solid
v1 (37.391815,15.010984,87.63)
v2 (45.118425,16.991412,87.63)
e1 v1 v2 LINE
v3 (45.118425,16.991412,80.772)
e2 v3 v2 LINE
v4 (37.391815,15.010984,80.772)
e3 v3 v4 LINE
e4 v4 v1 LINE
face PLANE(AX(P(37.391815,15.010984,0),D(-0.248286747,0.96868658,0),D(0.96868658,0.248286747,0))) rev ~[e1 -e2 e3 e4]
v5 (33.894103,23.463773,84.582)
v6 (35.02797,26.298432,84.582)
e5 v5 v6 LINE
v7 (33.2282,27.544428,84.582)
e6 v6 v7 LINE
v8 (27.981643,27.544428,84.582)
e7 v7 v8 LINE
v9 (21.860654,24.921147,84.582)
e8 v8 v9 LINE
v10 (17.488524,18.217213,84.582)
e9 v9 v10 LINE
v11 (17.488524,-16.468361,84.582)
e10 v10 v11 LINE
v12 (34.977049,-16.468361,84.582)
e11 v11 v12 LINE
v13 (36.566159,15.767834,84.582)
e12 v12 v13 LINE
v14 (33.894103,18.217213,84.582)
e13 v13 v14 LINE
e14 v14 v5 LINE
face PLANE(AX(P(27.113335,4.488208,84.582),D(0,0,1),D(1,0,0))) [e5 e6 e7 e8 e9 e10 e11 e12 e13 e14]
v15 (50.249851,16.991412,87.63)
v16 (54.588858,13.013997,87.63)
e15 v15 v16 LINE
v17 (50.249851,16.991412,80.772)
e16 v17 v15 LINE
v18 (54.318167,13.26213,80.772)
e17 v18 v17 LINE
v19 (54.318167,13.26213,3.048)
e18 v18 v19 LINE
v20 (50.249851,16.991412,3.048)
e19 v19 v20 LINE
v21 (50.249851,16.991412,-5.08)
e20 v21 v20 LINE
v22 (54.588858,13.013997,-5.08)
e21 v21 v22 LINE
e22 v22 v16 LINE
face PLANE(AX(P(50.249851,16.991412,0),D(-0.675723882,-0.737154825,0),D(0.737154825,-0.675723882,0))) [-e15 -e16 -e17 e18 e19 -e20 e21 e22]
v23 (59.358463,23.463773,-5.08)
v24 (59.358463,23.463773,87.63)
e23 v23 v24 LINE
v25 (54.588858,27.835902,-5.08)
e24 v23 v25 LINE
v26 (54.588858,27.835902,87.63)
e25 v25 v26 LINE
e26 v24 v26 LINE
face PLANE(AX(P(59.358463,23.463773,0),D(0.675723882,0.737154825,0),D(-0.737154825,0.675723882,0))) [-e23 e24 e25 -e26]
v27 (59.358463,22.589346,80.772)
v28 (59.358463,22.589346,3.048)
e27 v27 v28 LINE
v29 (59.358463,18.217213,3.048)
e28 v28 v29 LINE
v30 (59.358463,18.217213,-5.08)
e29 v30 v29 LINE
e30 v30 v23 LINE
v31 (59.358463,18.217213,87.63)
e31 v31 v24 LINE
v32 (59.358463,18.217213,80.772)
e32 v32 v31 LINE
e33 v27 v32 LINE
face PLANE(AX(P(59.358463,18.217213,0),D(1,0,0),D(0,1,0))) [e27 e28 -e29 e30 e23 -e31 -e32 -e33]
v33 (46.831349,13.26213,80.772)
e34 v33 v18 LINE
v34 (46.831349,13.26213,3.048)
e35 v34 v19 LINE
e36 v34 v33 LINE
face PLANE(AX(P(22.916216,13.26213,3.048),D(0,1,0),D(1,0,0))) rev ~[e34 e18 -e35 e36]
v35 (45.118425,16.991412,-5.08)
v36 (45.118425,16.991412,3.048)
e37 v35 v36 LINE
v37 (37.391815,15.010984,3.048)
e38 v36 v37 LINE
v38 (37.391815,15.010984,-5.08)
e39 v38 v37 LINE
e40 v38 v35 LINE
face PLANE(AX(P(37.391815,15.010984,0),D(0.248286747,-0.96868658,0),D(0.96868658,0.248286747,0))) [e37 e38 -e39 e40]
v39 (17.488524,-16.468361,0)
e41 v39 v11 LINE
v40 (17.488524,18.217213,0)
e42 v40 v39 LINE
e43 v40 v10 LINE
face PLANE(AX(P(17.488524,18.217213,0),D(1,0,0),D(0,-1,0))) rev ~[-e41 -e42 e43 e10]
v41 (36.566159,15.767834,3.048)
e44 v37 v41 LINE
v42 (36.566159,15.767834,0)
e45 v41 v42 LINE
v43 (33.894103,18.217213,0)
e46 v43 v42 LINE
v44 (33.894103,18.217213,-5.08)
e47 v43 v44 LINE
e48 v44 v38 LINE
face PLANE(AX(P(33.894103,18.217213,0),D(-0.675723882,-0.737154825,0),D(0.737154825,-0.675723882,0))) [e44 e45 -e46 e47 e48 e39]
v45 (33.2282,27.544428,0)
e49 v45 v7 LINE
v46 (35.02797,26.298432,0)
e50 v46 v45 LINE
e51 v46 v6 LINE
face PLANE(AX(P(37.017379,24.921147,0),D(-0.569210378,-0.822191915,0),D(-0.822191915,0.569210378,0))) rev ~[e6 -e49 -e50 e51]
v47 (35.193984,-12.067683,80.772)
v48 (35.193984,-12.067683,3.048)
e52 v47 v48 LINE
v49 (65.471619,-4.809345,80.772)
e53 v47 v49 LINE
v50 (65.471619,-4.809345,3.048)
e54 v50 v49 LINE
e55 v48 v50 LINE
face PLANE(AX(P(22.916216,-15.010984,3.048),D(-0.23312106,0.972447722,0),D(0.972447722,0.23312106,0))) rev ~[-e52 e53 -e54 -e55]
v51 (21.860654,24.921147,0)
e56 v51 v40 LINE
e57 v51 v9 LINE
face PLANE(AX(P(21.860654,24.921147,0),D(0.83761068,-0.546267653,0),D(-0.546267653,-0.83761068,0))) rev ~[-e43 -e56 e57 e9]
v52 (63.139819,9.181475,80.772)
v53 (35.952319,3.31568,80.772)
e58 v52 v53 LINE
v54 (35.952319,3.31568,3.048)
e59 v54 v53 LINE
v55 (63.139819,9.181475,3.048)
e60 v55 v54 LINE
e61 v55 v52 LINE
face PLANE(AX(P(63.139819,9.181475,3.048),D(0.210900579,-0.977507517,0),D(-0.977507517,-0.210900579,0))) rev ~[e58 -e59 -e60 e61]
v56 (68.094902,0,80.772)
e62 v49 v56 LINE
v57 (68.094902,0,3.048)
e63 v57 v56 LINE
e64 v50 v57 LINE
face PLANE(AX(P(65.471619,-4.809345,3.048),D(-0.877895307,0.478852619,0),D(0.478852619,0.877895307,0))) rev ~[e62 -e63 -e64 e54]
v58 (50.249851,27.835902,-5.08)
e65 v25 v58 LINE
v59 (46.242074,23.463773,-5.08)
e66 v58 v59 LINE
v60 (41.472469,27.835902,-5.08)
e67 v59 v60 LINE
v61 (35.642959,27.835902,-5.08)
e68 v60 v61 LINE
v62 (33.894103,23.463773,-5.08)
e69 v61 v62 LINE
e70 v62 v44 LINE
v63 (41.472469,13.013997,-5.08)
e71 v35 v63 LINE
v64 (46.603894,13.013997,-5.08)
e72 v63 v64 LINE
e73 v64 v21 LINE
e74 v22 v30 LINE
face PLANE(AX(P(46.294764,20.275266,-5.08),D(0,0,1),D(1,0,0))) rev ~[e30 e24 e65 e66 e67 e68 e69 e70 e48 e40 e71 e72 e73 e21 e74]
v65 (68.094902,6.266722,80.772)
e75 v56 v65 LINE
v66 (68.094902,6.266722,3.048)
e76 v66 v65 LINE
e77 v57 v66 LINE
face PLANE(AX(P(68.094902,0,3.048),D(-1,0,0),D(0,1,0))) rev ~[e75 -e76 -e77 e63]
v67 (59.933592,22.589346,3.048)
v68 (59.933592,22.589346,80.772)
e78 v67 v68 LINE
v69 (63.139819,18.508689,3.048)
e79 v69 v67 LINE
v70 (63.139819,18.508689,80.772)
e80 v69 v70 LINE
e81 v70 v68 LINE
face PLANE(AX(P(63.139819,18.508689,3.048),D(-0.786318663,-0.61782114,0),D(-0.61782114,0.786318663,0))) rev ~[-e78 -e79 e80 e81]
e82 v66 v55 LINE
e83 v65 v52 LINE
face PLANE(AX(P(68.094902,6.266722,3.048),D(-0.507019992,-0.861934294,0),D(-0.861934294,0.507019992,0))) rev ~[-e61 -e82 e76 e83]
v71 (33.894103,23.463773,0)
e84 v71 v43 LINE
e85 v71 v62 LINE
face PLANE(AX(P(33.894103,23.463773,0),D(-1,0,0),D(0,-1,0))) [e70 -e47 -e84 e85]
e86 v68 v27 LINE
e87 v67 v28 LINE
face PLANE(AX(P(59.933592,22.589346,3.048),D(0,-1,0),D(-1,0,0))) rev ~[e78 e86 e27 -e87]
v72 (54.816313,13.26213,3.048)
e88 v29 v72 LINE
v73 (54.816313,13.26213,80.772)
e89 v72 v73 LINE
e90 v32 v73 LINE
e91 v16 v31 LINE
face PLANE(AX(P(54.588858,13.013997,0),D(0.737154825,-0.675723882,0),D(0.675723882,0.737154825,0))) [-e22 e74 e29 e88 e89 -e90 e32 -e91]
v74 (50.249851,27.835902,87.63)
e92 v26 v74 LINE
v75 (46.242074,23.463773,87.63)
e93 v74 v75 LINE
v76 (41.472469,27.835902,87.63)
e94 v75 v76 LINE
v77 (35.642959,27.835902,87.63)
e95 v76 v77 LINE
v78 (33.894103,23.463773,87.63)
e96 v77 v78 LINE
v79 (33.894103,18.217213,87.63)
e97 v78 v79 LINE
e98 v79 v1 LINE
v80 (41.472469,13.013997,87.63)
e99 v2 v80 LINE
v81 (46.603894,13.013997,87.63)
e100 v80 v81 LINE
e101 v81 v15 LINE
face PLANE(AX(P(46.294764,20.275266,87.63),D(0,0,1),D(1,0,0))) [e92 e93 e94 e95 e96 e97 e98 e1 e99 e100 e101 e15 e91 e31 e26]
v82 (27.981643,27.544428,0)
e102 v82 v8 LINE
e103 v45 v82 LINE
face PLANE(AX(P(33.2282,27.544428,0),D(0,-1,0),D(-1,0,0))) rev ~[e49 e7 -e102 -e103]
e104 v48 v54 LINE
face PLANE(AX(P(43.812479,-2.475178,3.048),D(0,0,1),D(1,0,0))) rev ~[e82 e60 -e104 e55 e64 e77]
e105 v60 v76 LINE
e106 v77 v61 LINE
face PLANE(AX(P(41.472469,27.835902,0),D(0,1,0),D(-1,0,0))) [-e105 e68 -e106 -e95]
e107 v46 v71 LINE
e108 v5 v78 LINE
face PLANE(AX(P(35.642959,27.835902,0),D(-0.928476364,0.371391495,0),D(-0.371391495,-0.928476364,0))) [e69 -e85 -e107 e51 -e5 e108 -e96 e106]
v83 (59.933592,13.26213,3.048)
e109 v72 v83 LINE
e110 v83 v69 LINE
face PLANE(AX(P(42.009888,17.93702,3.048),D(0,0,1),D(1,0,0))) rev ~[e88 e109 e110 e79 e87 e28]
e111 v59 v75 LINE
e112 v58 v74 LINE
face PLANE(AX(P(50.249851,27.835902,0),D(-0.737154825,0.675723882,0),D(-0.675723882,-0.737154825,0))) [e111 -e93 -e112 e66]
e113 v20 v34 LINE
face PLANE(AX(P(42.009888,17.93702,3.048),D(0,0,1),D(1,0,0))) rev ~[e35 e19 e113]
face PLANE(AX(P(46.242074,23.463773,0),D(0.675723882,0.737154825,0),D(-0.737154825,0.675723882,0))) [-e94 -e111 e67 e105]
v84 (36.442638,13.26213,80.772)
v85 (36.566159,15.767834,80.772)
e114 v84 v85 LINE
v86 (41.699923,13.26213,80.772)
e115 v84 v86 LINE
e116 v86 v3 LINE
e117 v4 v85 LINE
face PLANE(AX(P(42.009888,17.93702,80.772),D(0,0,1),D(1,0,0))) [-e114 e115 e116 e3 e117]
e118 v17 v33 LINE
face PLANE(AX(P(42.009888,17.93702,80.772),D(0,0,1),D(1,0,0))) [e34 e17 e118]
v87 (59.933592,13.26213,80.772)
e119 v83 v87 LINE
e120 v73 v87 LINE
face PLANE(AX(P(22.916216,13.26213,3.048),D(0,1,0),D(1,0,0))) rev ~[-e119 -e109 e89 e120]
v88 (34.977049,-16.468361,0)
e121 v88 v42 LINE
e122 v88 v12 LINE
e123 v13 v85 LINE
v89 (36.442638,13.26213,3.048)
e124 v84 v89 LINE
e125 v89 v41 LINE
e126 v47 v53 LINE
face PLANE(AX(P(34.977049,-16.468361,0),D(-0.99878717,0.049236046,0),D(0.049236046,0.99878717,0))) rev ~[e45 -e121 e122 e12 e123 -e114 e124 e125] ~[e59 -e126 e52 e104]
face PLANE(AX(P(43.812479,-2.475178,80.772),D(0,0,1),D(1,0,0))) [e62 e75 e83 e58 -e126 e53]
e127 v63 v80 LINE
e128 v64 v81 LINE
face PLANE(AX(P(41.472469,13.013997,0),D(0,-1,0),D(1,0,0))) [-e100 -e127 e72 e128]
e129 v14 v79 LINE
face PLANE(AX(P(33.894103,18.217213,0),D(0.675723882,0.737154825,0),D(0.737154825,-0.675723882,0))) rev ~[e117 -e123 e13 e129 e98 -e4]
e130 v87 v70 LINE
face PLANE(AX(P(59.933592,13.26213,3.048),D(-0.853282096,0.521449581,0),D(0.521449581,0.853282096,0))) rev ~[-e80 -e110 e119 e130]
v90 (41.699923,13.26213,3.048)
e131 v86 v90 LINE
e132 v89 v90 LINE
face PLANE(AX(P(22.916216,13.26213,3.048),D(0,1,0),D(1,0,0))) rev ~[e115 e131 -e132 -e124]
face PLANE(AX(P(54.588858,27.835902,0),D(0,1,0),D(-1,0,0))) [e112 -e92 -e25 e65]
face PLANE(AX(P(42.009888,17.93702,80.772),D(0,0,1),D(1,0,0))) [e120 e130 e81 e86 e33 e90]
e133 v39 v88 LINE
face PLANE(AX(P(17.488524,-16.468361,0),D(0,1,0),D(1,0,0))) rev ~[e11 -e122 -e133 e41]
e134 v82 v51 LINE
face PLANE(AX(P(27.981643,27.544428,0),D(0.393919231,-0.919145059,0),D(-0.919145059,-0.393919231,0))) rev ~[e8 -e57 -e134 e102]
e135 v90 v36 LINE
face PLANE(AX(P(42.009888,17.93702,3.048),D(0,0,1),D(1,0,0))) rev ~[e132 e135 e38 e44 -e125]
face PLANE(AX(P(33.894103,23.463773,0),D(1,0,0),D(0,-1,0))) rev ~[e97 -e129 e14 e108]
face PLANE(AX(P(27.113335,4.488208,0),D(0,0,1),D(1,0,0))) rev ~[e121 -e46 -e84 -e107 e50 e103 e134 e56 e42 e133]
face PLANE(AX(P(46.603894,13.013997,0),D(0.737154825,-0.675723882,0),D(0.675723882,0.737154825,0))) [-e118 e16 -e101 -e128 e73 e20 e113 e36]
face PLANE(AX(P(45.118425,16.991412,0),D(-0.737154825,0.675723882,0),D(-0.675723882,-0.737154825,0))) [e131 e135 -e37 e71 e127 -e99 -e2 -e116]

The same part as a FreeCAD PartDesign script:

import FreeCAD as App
import Part
import Sketcher

V = App.Vector
Q = App.Units.Quantity

doc = App.newDocument("Part")
body = doc.addObject("PartDesign::Body", "Body")

sketch1 = doc.addObject("Sketcher::SketchObject", "Sketch")
body.addObject(sketch1)
sketch1.AttachmentSupport = (doc.XY_Plane, [""])
sketch1.MapMode = "FlatFace"
sketch1.addGeometry([
    Part.LineSegment(V(17.5, -16.5, 0), V(35, -16.5, 0)),
    Part.LineSegment(V(35, -16.5, 0), V(37, 24.9, 0)),
    Part.LineSegment(V(37, 24.9, 0), V(33.2, 27.5, 0)),
    Part.LineSegment(V(33.2, 27.5, 0), V(28, 27.5, 0)),
    Part.LineSegment(V(28, 27.5, 0), V(21.9, 24.9, 0)),
    Part.LineSegment(V(21.9, 24.9, 0), V(17.5, 18.2, 0)),
    Part.LineSegment(V(17.5, 18.2, 0), V(17.5, -16.5, 0)),
], False)
sketch1.addConstraint([
    Sketcher.Constraint("Coincident", 0, 2, 1, 1),
    Sketcher.Constraint("Coincident", 1, 2, 2, 1),
    Sketcher.Constraint("Coincident", 2, 2, 3, 1),
    Sketcher.Constraint("Coincident", 3, 2, 4, 1),
    Sketcher.Constraint("Coincident", 4, 2, 5, 1),
    Sketcher.Constraint("Coincident", 5, 2, 6, 1),
    Sketcher.Constraint("Coincident", 6, 2, 0, 1),
    Sketcher.Constraint("Horizontal", 0),
    Sketcher.Constraint("Horizontal", 3),
    Sketcher.Constraint("Vertical", 6),
    Sketcher.Constraint("Horizontal", 1, 2, 4, 2),
    Sketcher.Constraint("DistanceX", -1, 1, 2, 2, Q("33.2282 mm")),
    Sketcher.Constraint("Distance", 2, Q("4.608631 mm")),
    Sketcher.Constraint("Distance", 5, Q("8.003639 mm")),
    Sketcher.Constraint("DistanceX", 0, 1, 0, 2, Q("17.488524 mm")),
    Sketcher.Constraint("DistanceX", 3, 2, 3, 1, Q("5.246557 mm")),
    Sketcher.Constraint("DistanceY", 6, 2, 6, 1, Q("34.685574 mm")),
    Sketcher.Constraint("DistanceX", -1, 1, 0, 2, Q("34.977049 mm")),
    Sketcher.Constraint("DistanceY", 0, 2, -1, 1, Q("16.468361 mm")),
    Sketcher.Constraint("DistanceX", -1, 1, 1, 2, Q("37.017379 mm")),
    Sketcher.Constraint("DistanceY", 0, 2, 1, 2, Q("41.389508 mm")),
])
pad1 = doc.addObject("PartDesign::Pad", "Pad")
body.addObject(pad1)
pad1.Profile = sketch1
pad1.Length = Q("3.33 in")

sketch2 = doc.addObject("Sketcher::SketchObject", "Sketch001")
body.addObject(sketch2)
sketch2.AttachmentSupport = (doc.XY_Plane, [""])
sketch2.MapMode = "FlatFace"
sketch2.AttachmentOffset = App.Placement(V(0, 0, 0.12 * 25.4), App.Rotation())
sketch2.addGeometry([
    Part.LineSegment(V(63, 9, 0), V(21, 0, 0)),
    Part.LineSegment(V(21, 0, 0), V(23, -15, 0)),
    Part.LineSegment(V(23, -15, 0), V(65, -5, 0)),
    Part.LineSegment(V(65, -5, 0), V(68, 0, 0)),
    Part.LineSegment(V(68, 0, 0), V(68, 6, 0)),
    Part.LineSegment(V(68, 6, 0), V(63, 9, 0)),
    Part.LineSegment(V(60, 23, 0), V(23, 23, 0)),
    Part.LineSegment(V(23, 23, 0), V(23, 13, 0)),
    Part.LineSegment(V(23, 13, 0), V(60, 13, 0)),
    Part.LineSegment(V(60, 13, 0), V(63, 19, 0)),
    Part.LineSegment(V(63, 19, 0), V(60, 23, 0)),
], False)
sketch2.addConstraint([
    Sketcher.Constraint("Coincident", 0, 2, 1, 1),
    Sketcher.Constraint("Coincident", 1, 2, 2, 1),
    Sketcher.Constraint("Coincident", 2, 2, 3, 1),
    Sketcher.Constraint("Coincident", 3, 2, 4, 1),
    Sketcher.Constraint("Coincident", 4, 2, 5, 1),
    Sketcher.Constraint("Coincident", 5, 2, 0, 1),
    Sketcher.Constraint("Coincident", 6, 2, 7, 1),
    Sketcher.Constraint("Coincident", 7, 2, 8, 1),
    Sketcher.Constraint("Coincident", 8, 2, 9, 1),
    Sketcher.Constraint("Coincident", 9, 2, 10, 1),
    Sketcher.Constraint("Coincident", 10, 2, 6, 1),
    Sketcher.Constraint("Vertical", 4),
    Sketcher.Constraint("Horizontal", 6),
    Sketcher.Constraint("Vertical", 7),
    Sketcher.Constraint("Horizontal", 8),
    Sketcher.Constraint("PointOnObject", 0, 2, -1),
    Sketcher.Constraint("PointOnObject", 3, 2, -1),
    Sketcher.Constraint("Vertical", 1, 2, 6, 2),
    Sketcher.Constraint("Vertical", 5, 2, 9, 2),
    Sketcher.Constraint("Vertical", 8, 2, 10, 2),
    Sketcher.Constraint("DistanceY", 4, 1, 4, 2, Q("6.266722 mm")),
    Sketcher.Constraint("DistanceX", -1, 1, 3, 2, Q("68.094902 mm")),
    Sketcher.Constraint("DistanceX", 5, 2, 2, 2, Q("2.331801 mm")),
    Sketcher.Constraint("Distance", 2, Q("43.761122 mm")),
    Sketcher.Constraint("Distance", 9, Q("6.148681 mm")),
    Sketcher.Constraint("Distance", 10, Q("5.189571 mm")),
    Sketcher.Constraint("DistanceX", 6, 2, 6, 1, Q("37.017375 mm")),
    Sketcher.Constraint("DistanceY", 7, 2, 7, 1, Q("9.327216 mm")),
    Sketcher.Constraint("DistanceX", -1, 1, 2, 2, Q("65.471619 mm")),
    Sketcher.Constraint("DistanceY", -1, 1, 7, 2, Q("13.26213 mm")),
    Sketcher.Constraint("DistanceX", 0, 2, 1, 2, Q("2.33181 mm")),
    Sketcher.Constraint("DistanceY", 2, 2, 5, 2, Q("13.99082 mm")),
    Sketcher.Constraint("DistanceY", 1, 2, 6, 2, Q("37.60033 mm")),
])
pad2 = doc.addObject("PartDesign::Pad", "Pad001")
body.addObject(pad2)
pad2.Profile = sketch2
pad2.Length = Q("3.06 in")

sketch3 = doc.addObject("Sketcher::SketchObject", "Sketch002")
body.addObject(sketch3)
sketch3.AttachmentSupport = (doc.XY_Plane, [""])
sketch3.MapMode = "FlatFace"
sketch3.addGeometry([
    Part.LineSegment(V(33.9, 18.2, 0), V(37.4, 15, 0)),
    Part.LineSegment(V(37.4, 15, 0), V(45.1, 17, 0)),
    Part.LineSegment(V(45.1, 17, 0), V(41.5, 13, 0)),
    Part.LineSegment(V(41.5, 13, 0), V(46.6, 13, 0)),
    Part.LineSegment(V(46.6, 13, 0), V(50.2, 17, 0)),
    Part.LineSegment(V(50.2, 17, 0), V(54.6, 13, 0)),
    Part.LineSegment(V(54.6, 13, 0), V(59.4, 18.2, 0)),
    Part.LineSegment(V(59.4, 18.2, 0), V(59.4, 23.5, 0)),
    Part.LineSegment(V(59.4, 23.5, 0), V(54.6, 27.8, 0)),
    Part.LineSegment(V(54.6, 27.8, 0), V(50.2, 27.8, 0)),
    Part.LineSegment(V(50.2, 27.8, 0), V(46.2, 23.5, 0)),
    Part.LineSegment(V(46.2, 23.5, 0), V(41.5, 27.8, 0)),
    Part.LineSegment(V(41.5, 27.8, 0), V(35.6, 27.8, 0)),
    Part.LineSegment(V(35.6, 27.8, 0), V(33.9, 23.5, 0)),
    Part.LineSegment(V(33.9, 23.5, 0), V(33.9, 18.2, 0)),
], False)
sketch3.addConstraint([
    Sketcher.Constraint("Coincident", 0, 2, 1, 1),
    Sketcher.Constraint("Coincident", 1, 2, 2, 1),
    Sketcher.Constraint("Coincident", 2, 2, 3, 1),
    Sketcher.Constraint("Coincident", 3, 2, 4, 1),
    Sketcher.Constraint("Coincident", 4, 2, 5, 1),
    Sketcher.Constraint("Coincident", 5, 2, 6, 1),
    Sketcher.Constraint("Coincident", 6, 2, 7, 1),
    Sketcher.Constraint("Coincident", 7, 2, 8, 1),
    Sketcher.Constraint("Coincident", 8, 2, 9, 1),
    Sketcher.Constraint("Coincident", 9, 2, 10, 1),
    Sketcher.Constraint("Coincident", 10, 2, 11, 1),
    Sketcher.Constraint("Coincident", 11, 2, 12, 1),
    Sketcher.Constraint("Coincident", 12, 2, 13, 1),
    Sketcher.Constraint("Coincident", 13, 2, 14, 1),
    Sketcher.Constraint("Coincident", 14, 2, 0, 1),
    Sketcher.Constraint("Horizontal", 3),
    Sketcher.Constraint("Vertical", 7),
    Sketcher.Constraint("Horizontal", 9),
    Sketcher.Constraint("Horizontal", 12),
    Sketcher.Constraint("Vertical", 14),
    Sketcher.Constraint("Perpendicular", 0, 2),
    Sketcher.Constraint("Parallel", 2, 4),
    Sketcher.Constraint("Perpendicular", 4, 5),
    Sketcher.Constraint("Perpendicular", 5, 6),
    Sketcher.Constraint("Perpendicular", 6, 8),
    Sketcher.Constraint("Perpendicular", 8, 10),
    Sketcher.Constraint("Perpendicular", 10, 11),
    Sketcher.Constraint("Horizontal", 1, 2, 4, 2),
    Sketcher.Constraint("Horizontal", 3, 2, 5, 2),
    Sketcher.Constraint("Horizontal", 7, 2, 10, 2),
    Sketcher.Constraint("Horizontal", 9, 2, 11, 2),
    Sketcher.Constraint("Horizontal", 10, 2, 13, 2),
    Sketcher.Constraint("Horizontal", 6, 2, 14, 2),
    Sketcher.Constraint("Vertical", 5, 2, 8, 2),
    Sketcher.Constraint("Vertical", 4, 2, 9, 2),
    Sketcher.Constraint("Vertical", 2, 2, 11, 2),
    Sketcher.Constraint("DistanceX", 12, 2, 12, 1, Q("5.829509 mm")),
    Sketcher.Constraint("DistanceY", 7, 1, 7, 2, Q("5.246559 mm")),
    Sketcher.Constraint("DistanceY", -1, 1, 8, 2, Q("27.835902 mm")),
    Sketcher.Constraint("DistanceY", 4, 2, 6, 2, Q("1.225801 mm")),
    Sketcher.Constraint("Distance", 0, Q("4.744882 mm")),
    Sketcher.Constraint("Distance", 2, Q("5.395631 mm")),
    Sketcher.Constraint("Distance", 8, Q("6.47029 mm")),
    Sketcher.Constraint("Distance", 13, Q("4.708929 mm")),
    Sketcher.Constraint("DistanceX", -1, 1, 2, 2, Q("41.472469 mm")),
])
pad3 = doc.addObject("PartDesign::Pad", "Pad002")
body.addObject(pad3)
pad3.Profile = sketch3
pad3.Type = "TwoLengths"
pad3.Length = Q("3.45 in")
pad3.Length2 = Q("0.2 in")

doc.recompute()
